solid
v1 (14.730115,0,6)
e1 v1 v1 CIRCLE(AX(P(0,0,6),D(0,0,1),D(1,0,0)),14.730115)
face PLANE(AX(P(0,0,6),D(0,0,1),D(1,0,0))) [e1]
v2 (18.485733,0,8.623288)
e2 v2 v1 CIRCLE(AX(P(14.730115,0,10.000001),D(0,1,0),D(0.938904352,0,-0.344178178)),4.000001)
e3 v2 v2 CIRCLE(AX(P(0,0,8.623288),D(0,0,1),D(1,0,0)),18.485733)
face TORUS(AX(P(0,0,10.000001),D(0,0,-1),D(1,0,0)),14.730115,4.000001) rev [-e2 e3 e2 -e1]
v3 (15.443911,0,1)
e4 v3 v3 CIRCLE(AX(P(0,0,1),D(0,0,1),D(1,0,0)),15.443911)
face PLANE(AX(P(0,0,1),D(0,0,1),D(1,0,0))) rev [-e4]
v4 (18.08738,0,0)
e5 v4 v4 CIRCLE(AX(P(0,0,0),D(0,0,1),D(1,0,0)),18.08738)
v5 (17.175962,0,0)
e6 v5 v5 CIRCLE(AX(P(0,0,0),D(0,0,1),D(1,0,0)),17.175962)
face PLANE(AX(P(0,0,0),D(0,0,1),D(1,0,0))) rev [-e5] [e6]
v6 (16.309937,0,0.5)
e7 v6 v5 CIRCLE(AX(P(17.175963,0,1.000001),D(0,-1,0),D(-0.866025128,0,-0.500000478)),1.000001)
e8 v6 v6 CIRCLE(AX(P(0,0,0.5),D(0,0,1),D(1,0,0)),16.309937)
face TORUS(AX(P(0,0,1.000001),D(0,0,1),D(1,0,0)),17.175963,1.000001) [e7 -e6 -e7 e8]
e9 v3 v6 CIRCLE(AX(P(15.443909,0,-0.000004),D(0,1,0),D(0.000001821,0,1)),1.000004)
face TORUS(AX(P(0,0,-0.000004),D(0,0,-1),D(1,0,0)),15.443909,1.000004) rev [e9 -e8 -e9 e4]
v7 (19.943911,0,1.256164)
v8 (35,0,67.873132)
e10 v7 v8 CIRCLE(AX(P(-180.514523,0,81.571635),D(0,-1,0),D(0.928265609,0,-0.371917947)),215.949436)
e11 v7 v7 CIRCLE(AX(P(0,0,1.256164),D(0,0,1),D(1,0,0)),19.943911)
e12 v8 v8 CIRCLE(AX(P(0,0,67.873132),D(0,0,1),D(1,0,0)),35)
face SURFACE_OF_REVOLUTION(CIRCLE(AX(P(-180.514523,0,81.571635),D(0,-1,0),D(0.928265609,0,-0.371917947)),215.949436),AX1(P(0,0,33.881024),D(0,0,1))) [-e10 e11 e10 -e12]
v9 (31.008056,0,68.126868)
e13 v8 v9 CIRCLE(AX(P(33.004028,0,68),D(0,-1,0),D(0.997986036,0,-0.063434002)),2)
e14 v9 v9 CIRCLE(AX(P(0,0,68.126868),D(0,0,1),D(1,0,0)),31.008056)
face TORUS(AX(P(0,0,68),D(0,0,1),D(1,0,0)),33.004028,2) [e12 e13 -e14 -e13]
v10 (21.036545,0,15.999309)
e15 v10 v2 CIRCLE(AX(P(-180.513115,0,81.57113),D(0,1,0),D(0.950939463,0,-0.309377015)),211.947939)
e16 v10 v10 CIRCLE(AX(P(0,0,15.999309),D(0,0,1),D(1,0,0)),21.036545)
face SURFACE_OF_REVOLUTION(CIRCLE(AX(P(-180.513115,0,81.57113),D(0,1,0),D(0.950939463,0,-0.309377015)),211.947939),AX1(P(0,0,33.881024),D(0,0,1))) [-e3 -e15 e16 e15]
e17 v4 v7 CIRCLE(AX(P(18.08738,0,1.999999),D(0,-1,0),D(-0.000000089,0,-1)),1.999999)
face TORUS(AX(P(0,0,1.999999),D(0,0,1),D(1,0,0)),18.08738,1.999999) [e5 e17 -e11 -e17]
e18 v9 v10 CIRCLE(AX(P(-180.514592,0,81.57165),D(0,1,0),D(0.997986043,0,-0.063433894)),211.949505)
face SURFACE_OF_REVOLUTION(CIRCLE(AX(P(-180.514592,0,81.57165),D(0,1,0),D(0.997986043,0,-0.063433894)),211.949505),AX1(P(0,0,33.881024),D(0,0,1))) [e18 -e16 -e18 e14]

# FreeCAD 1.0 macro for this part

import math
import FreeCAD as App
import Part
import Sketcher
from FreeCAD import Vector

doc = App.newDocument("Part")
params = doc.addObject("Spreadsheet::Sheet", "Params")
for row, (alias, value) in enumerate([
    ("sketch1_radius", "1.000001 mm"),
    ("sketch1_radius2", "1.999999 mm"),
    ("sketch1_radius3", "2 mm"),
    ("sketch1_radius4", "4.000001 mm"),
    ("sketch1_height", "5 mm"),
    ("revolution_angle", "360 deg"),
], start=1):
    params.set(f"A{row}", alias)
    params.set(f"B{row}", "=" + value)
    params.setAlias(f"B{row}", alias)

body = doc.addObject("PartDesign::Body", "Body")

# Sketch on XZ plane
sketch1 = body.newObject("Sketcher::SketchObject", "Sketch")
sketch1.AttachmentSupport = (doc.getObject("XZ_Plane"), [""])
sketch1.MapMode = "FlatFace"
sketch1.addGeometry(Part.LineSegment(Vector(0, 6, 0), Vector(0, 1, 0)), False)
sketch1.addGeometry(Part.LineSegment(Vector(0, 1, 0), Vector(15.443911, 1, 0)), False)
sketch1.addGeometry(Part.ArcOfCircle(Part.Circle(Vector(15.443909, -0.000004, 0), Vector(0, 0, 1), 1.000004), math.radians(30.000139), math.radians(89.999896)), False)
sketch1.addGeometry(Part.ArcOfCircle(Part.Circle(Vector(17.175963, 1.000001, 0), Vector(0, 0, 1), 1.000001), math.radians(-149.999968), math.radians(-90.000055)), False)
sketch1.addGeometry(Part.LineSegment(Vector(17.175962, 0, 0), Vector(18.08738, 0, 0)), False)
sketch1.addGeometry(Part.ArcOfCircle(Part.Circle(Vector(18.08738, 1.999999, 0), Vector(0, 0, 1), 1.999999), math.radians(-90.000005), math.radians(-21.833944)), False)
sketch1.addGeometry(Part.ArcOfCircle(Part.Circle(Vector(-180.514523, 81.571635, 0), Vector(0, 0, 1), 215.949436), math.radians(-21.833951), math.radians(-3.636933)), False)
sketch1.addGeometry(Part.ArcOfCircle(Part.Circle(Vector(33.004028, 68, 0), Vector(0, 0, 1), 2), math.radians(-3.636942), math.radians(176.363058)), False)
sketch1.addGeometry(Part.ArcOfCircle(Part.Circle(Vector(-180.514592, 81.57165, 0), Vector(0, 0, 1), 211.949505), math.radians(-18.021701), math.radians(-3.636936)), False)
sketch1.addGeometry(Part.ArcOfCircle(Part.Circle(Vector(-180.513115, 81.57113, 0), Vector(0, 0, 1), 211.947939), math.radians(-20.131633), math.radians(-18.021691)), False)
sketch1.addGeometry(Part.ArcOfCircle(Part.Circle(Vector(14.730115, 10.000001, 0), Vector(0, 0, 1), 4.000001), math.radians(-89.999994), math.radians(-20.131637)), False)
sketch1.addGeometry(Part.LineSegment(Vector(14.730115, 6, 0), Vector(0, 6, 0)), False)
sketch1.addConstraint(Sketcher.Constraint("Coincident", 0, 2, 1, 1))
sketch1.addConstraint(Sketcher.Constraint("Coincident", 1, 2, 2, 2))
sketch1.addConstraint(Sketcher.Constraint("Coincident", 2, 1, 3, 1))
sketch1.addConstraint(Sketcher.Constraint("Coincident", 3, 2, 4, 1))
sketch1.addConstraint(Sketcher.Constraint("Coincident", 4, 2, 5, 1))
sketch1.addConstraint(Sketcher.Constraint("Coincident", 5, 2, 6, 1))
sketch1.addConstraint(Sketcher.Constraint("Coincident", 6, 2, 7, 1))
sketch1.addConstraint(Sketcher.Constraint("Coincident", 7, 2, 8, 2))
sketch1.addConstraint(Sketcher.Constraint("Coincident", 8, 1, 9, 2))
sketch1.addConstraint(Sketcher.Constraint("Coincident", 9, 1, 10, 2))
sketch1.addConstraint(Sketcher.Constraint("Coincident", 10, 1, 11, 1))
sketch1.addConstraint(Sketcher.Constraint("Coincident", 11, 2, 0, 1))
sketch1.addConstraint(Sketcher.Constraint("Vertical", 0))
sketch1.addConstraint(Sketcher.Constraint("Horizontal", 1))
sketch1.addConstraint(Sketcher.Constraint("Horizontal", 4))
sketch1.addConstraint(Sketcher.Constraint("Horizontal", 11))
sketch1.addConstraint(Sketcher.Constraint("PointOnObject", 0, 2, -2))
sketch1.addConstraint(Sketcher.Constraint("PointOnObject", 3, 2, -1))
sketch1.addConstraint(Sketcher.Constraint("Radius", 3, 1.000001))
sketch1.addConstraint(Sketcher.Constraint("Radius", 5, 1.999999))
sketch1.addConstraint(Sketcher.Constraint("Radius", 7, 2.0))
sketch1.addConstraint(Sketcher.Constraint("Radius", 10, 4.000001))
sketch1.addConstraint(Sketcher.Constraint("DistanceY", 0, 2, 0, 1, 5.0))
sketch1.addConstraint(Sketcher.Constraint("DistanceY", -1, 1, 7, 3, 68.0))
sketch1.addConstraint(Sketcher.Constraint("DistanceY", -1, 1, 10, 3, 10.000001))
sketch1.addConstraint(Sketcher.Constraint("DistanceX", -1, 1, 6, 2, 35.0))
sketch1.addConstraint(Sketcher.Constraint("DistanceY", -1, 1, 2, 1, 0.5))
sketch1.addConstraint(Sketcher.Constraint("Radius", 9, 211.947939))
sketch1.addConstraint(Sketcher.Constraint("Radius", 2, 1.000004))
sketch1.addConstraint(Sketcher.Constraint("Radius", 6, 215.949436))
sketch1.addConstraint(Sketcher.Constraint("Radius", 8, 211.949505))
sketch1.addConstraint(Sketcher.Constraint("DistanceX", 1, 1, 1, 2, 15.443911))
sketch1.addConstraint(Sketcher.Constraint("DistanceX", 4, 1, 4, 2, 0.911418))
sketch1.addConstraint(Sketcher.Constraint("DistanceX", 8, 3, 2, 3, 195.958501))
sketch1.addConstraint(Sketcher.Constraint("DistanceX", 11, 2, 11, 1, 14.730115))
sketch1.addConstraint(Sketcher.Constraint("DistanceX", -1, 1, 2, 3, 15.443909))
sketch1.addConstraint(Sketcher.Constraint("DistanceX", -1, 1, 5, 3, 18.08738))
sketch1.addConstraint(Sketcher.Constraint("DistanceY", -1, 1, 8, 3, 81.57165))
sketch1.addConstraint(Sketcher.Constraint("DistanceY", -1, 1, 9, 3, 81.57113))
sketch1.addConstraint(Sketcher.Constraint("DistanceX", -1, 1, 3, 2, 17.175962))
sketch1.addConstraint(Sketcher.Constraint("DistanceX", -1, 1, 5, 2, 19.943911))
sketch1.addConstraint(Sketcher.Constraint("DistanceY", -1, 1, 7, 2, 68.126868))
sketch1.addConstraint(Sketcher.Constraint("DistanceY", -1, 1, 8, 1, 15.999309))
sketch1.addConstraint(Sketcher.Constraint("DistanceX", 10, 3, 9, 1, 3.755618))
sketch1.setExpression("Constraints[18]", "Params.sketch1_radius")
sketch1.setExpression("Constraints[19]", "Params.sketch1_radius2")
sketch1.setExpression("Constraints[20]", "Params.sketch1_radius3")
sketch1.setExpression("Constraints[21]", "Params.sketch1_radius4")
sketch1.setExpression("Constraints[22]", "Params.sketch1_height")
revolution = body.newObject("PartDesign::Revolution", "Revolution")
revolution.Profile = sketch1
revolution.ReferenceAxis = (sketch1, ["V_Axis"])
revolution.setExpression("Angle", "Params.revolution_angle")

doc.recompute()
